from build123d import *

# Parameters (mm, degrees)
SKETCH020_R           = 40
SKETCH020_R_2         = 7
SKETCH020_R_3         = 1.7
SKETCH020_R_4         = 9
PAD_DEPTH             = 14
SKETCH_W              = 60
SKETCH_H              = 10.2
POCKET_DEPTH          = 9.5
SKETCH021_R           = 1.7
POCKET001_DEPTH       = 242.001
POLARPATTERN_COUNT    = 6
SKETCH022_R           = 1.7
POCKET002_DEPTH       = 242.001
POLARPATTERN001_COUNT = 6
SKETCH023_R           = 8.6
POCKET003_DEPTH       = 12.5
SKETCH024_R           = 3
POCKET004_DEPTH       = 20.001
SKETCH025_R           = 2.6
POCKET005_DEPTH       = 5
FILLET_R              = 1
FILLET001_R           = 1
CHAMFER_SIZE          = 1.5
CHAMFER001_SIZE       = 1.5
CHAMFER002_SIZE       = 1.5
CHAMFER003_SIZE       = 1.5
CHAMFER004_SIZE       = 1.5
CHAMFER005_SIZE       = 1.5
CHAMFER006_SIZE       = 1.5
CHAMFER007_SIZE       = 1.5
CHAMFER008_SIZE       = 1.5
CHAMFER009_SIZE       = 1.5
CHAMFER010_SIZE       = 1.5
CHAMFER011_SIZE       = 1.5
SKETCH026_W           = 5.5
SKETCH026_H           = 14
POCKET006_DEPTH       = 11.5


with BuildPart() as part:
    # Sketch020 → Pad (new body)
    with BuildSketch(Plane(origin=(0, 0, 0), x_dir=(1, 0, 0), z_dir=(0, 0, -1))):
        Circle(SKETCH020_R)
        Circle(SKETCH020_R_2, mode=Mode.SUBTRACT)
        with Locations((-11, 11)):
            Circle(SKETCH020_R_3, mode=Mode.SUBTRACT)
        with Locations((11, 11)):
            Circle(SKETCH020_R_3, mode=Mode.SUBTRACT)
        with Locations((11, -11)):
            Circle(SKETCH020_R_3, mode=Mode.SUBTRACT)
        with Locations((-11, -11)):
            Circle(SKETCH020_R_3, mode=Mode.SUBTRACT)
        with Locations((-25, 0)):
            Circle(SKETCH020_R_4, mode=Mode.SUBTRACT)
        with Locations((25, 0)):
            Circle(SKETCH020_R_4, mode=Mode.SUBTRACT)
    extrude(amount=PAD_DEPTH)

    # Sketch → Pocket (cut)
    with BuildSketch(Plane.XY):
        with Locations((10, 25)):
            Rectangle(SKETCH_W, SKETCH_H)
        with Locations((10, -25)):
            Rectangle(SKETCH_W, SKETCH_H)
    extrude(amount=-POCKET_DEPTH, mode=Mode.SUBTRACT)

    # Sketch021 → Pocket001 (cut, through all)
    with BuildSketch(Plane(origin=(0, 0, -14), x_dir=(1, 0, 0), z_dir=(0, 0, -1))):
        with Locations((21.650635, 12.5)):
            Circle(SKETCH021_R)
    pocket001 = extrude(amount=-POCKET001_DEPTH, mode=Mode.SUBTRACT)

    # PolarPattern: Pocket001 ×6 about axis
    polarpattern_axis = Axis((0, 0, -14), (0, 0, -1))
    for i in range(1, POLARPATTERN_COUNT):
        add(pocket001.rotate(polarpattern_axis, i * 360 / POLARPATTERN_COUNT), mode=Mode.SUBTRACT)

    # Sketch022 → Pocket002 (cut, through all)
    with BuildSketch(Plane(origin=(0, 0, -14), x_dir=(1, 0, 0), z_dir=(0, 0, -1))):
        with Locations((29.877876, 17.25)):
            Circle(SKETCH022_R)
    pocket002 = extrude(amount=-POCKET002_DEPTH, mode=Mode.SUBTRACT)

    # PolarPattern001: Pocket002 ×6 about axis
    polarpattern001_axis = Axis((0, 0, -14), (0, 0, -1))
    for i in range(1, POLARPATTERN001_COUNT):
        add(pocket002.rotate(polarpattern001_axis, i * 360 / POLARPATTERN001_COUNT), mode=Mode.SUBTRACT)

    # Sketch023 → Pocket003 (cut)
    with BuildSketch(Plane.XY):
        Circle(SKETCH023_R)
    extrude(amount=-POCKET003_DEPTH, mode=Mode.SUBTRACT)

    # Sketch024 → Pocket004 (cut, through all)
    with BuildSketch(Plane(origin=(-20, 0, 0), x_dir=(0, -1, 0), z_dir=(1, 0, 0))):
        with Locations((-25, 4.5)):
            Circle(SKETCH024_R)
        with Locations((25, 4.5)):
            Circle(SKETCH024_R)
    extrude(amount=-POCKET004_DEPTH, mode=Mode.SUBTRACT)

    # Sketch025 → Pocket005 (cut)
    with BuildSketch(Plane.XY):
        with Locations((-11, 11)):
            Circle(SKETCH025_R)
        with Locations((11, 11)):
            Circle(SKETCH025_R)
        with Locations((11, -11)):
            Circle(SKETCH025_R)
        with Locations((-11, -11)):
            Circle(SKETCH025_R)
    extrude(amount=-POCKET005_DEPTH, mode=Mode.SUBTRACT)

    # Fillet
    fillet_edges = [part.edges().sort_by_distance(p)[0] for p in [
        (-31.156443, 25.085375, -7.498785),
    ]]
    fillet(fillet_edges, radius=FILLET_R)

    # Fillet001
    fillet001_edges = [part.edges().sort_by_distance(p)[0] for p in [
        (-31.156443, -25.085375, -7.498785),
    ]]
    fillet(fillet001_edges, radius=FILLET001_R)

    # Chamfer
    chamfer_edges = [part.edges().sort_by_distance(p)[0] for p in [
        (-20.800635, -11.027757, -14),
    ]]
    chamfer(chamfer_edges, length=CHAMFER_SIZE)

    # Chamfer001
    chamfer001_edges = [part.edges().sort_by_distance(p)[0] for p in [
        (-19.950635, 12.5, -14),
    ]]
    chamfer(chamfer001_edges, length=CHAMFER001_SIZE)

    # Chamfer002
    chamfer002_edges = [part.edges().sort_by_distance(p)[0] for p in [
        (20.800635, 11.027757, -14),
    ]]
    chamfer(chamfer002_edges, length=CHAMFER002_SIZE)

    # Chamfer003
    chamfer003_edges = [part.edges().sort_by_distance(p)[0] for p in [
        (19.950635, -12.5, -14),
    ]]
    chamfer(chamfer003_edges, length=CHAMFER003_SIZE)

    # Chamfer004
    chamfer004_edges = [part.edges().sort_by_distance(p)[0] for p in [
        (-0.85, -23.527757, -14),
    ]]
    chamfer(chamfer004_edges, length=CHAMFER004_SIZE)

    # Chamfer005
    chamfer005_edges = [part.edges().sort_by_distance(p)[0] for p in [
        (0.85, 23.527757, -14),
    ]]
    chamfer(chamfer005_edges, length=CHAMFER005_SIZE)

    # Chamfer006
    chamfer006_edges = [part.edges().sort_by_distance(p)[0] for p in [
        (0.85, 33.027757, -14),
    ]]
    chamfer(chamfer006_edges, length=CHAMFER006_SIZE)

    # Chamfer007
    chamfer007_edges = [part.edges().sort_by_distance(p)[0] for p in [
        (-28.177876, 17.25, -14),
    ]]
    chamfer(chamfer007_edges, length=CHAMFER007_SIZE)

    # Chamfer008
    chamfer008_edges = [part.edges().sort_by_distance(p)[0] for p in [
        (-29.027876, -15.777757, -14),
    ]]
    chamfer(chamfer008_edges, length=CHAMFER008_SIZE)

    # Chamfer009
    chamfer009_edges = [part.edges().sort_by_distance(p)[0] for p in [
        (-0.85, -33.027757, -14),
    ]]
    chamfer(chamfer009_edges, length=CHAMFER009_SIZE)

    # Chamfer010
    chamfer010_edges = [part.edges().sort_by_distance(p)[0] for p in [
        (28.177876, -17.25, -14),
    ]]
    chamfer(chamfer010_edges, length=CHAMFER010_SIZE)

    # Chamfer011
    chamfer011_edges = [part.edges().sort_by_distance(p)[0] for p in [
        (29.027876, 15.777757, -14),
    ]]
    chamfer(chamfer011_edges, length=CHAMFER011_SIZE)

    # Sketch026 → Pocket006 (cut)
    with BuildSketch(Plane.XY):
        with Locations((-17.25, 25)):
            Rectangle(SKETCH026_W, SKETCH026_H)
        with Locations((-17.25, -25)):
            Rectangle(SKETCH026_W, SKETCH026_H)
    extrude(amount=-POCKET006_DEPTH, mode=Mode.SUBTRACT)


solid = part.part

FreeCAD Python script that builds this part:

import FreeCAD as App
import Part
import Sketcher
from FreeCAD import Vector


def edges_at(feature, points):
    """Names of the edges that pass closest to the given points."""
    edges = feature.Shape.Edges
    near = lambda p: min(range(len(edges)), key=lambda i: edges[i].distToShape(Part.Vertex(*p))[0])
    return sorted({f"Edge{near(p) + 1}" for p in points})

doc = App.newDocument("Part")
body = doc.addObject("PartDesign::Body", "Body")

# Sketch on XY plane
sketch1 = body.newObject("Sketcher::SketchObject", "Sketch")
sketch1.AttachmentSupport = (doc.getObject("XY_Plane"), [""])
sketch1.MapMode = "FlatFace"
sketch1.addGeometry([
    Part.Circle(Vector(0, 0, 0), Vector(0, 0, 1), 40),  # 0
    Part.Circle(Vector(-11, 11, 0), Vector(0, 0, 1), 1.7),  # 1
    Part.Circle(Vector(-25, 0, 0), Vector(0, 0, 1), 9),  # 2
    Part.Circle(Vector(11, 11, 0), Vector(0, 0, 1), 1.7),  # 3
    Part.Circle(Vector(0, 0, 0), Vector(0, 0, 1), 7),  # 4
    Part.Circle(Vector(25, 0, 0), Vector(0, 0, 1), 9),  # 5
    Part.Circle(Vector(-11, -11, 0), Vector(0, 0, 1), 1.7),  # 6
    Part.Circle(Vector(11, -11, 0), Vector(0, 0, 1), 1.7),  # 7
], False)
sketch1.addConstraint([
    Sketcher.Constraint("Coincident", 0, 3, -1, 1),
    Sketcher.Constraint("Coincident", 4, 3, -1, 1),
    Sketcher.Constraint("Equal", 1, 3),
    Sketcher.Constraint("Equal", 2, 5),
    Sketcher.Constraint("Equal", 3, 6),
    Sketcher.Constraint("Equal", 6, 7),
    Sketcher.Constraint("Symmetric", 2, 3, 5, 3, -1, 1),
    Sketcher.Constraint("Symmetric", 3, 3, 6, 3, -1, 1),
    Sketcher.Constraint("Symmetric", 1, 3, 7, 3, -1, 1),
    Sketcher.Constraint("Symmetric", 1, 3, 3, 3, -2),
    Sketcher.Constraint("PointOnObject", 2, 3, -1),
    Sketcher.Constraint("Diameter", 0, 80.0),
    Sketcher.Constraint("Diameter", 2, 18.0),
    Sketcher.Constraint("Diameter", 4, 14.0),
    Sketcher.Constraint("Diameter", 1, 3.4),
    Sketcher.Constraint("DistanceX", 1, 3, -1, 1, 11.0),
    Sketcher.Constraint("DistanceY", -1, 1, 1, 3, 11.0),
    Sketcher.Constraint("DistanceX", 2, 3, -1, 1, 25.0),
])
pad1 = body.newObject("PartDesign::Pad", "Pad")
pad1.Profile = sketch1
pad1.Length = 14
pad1.Reversed = True

# Sketch on XY plane
sketch2 = body.newObject("Sketcher::SketchObject", "Sketch001")
sketch2.AttachmentSupport = (doc.getObject("XY_Plane"), [""])
sketch2.MapMode = "FlatFace"
sketch2.addGeometry([
    Part.LineSegment(Vector(-20, 30, 0), Vector(-20, 20, 0)),  # 0
    Part.LineSegment(Vector(-20, 20, 0), Vector(40, 20, 0)),  # 1
    Part.LineSegment(Vector(40, 20, 0), Vector(40, 30, 0)),  # 2
    Part.LineSegment(Vector(40, 30, 0), Vector(-20, 30, 0)),  # 3
    Part.LineSegment(Vector(-20, -20, 0), Vector(-20, -30, 0)),  # 4
    Part.LineSegment(Vector(-20, -30, 0), Vector(40, -30, 0)),  # 5
    Part.LineSegment(Vector(40, -30, 0), Vector(40, -20, 0)),  # 6
    Part.LineSegment(Vector(40, -20, 0), Vector(-20, -20, 0)),  # 7
], False)
sketch2.addConstraint([
    Sketcher.Constraint("Coincident", 0, 2, 1, 1),
    Sketcher.Constraint("Coincident", 1, 2, 2, 1),
    Sketcher.Constraint("Coincident", 2, 2, 3, 1),
    Sketcher.Constraint("Coincident", 3, 2, 0, 1),
    Sketcher.Constraint("Coincident", 4, 2, 5, 1),
    Sketcher.Constraint("Coincident", 5, 2, 6, 1),
    Sketcher.Constraint("Coincident", 6, 2, 7, 1),
    Sketcher.Constraint("Coincident", 7, 2, 4, 1),
    Sketcher.Constraint("Vertical", 0),
    Sketcher.Constraint("Horizontal", 1),
    Sketcher.Constraint("Vertical", 2),
    Sketcher.Constraint("Horizontal", 3),
    Sketcher.Constraint("Vertical", 4),
    Sketcher.Constraint("Horizontal", 5),
    Sketcher.Constraint("Vertical", 6),
    Sketcher.Constraint("Horizontal", 7),
    Sketcher.Constraint("Symmetric", 3, 2, 4, 2, -1),
    Sketcher.Constraint("Symmetric", 1, 2, 6, 2, -1),
    Sketcher.Constraint("DistanceX", 1, 1, 1, 2, 60.0),
    Sketcher.Constraint("DistanceY", 0, 2, 0, 1, 10.2),
    Sketcher.Constraint("DistanceX", 0, 2, -1, 1, 20.0),
    Sketcher.Constraint("DistanceY", 4, 2, 0, 2, 50.0),
])
pocket1 = body.newObject("PartDesign::Pocket", "Pocket")
pocket1.Profile = sketch2
pocket1.Length = 9.5

# Sketch on XY plane
sketch3 = body.newObject("Sketcher::SketchObject", "Sketch002")
sketch3.AttachmentSupport = (doc.getObject("XY_Plane"), [""])
sketch3.MapMode = "FlatFace"
sketch3.AttachmentOffset = App.Placement(Vector(0, 0, -14), App.Rotation())
sketch3.addGeometry(Part.Circle(Vector(21.7, -12.5, 0), Vector(0, 0, 1), 1.7), False)
sketch3.addConstraint([
    Sketcher.Constraint("Diameter", 0, 3.4),
    Sketcher.Constraint("DistanceY", 0, 3, -1, 1, 12.5),
    Sketcher.Constraint("DistanceX", -1, 1, 0, 3, 21.650635),
])
pocket2 = body.newObject("PartDesign::Pocket", "Pocket001")
pocket2.Profile = sketch3
pocket2.Type = "ThroughAll"
pocket2.Reversed = True
doc.recompute()

polarpattern = body.newObject("PartDesign::PolarPattern", "PolarPattern")
polarpattern.Originals = [pocket2]
polarpattern.Axis = (doc.getObject("Z_Axis"), [""])
polarpattern.Angle = 360
polarpattern.Occurrences = 6
body.Tip = polarpattern

# Sketch on XY plane
sketch4 = body.newObject("Sketcher::SketchObject", "Sketch003")
sketch4.AttachmentSupport = (doc.getObject("XY_Plane"), [""])
sketch4.MapMode = "FlatFace"
sketch4.AttachmentOffset = App.Placement(Vector(0, 0, -14), App.Rotation())
sketch4.addGeometry(Part.Circle(Vector(29.9, -17.2, 0), Vector(0, 0, 1), 1.7), False)
sketch4.addConstraint([
    Sketcher.Constraint("Diameter", 0, 3.4),
    Sketcher.Constraint("DistanceY", 0, 3, -1, 1, 17.25),
    Sketcher.Constraint("DistanceX", -1, 1, 0, 3, 29.877876),
])
pocket3 = body.newObject("PartDesign::Pocket", "Pocket002")
pocket3.Profile = sketch4
pocket3.Type = "ThroughAll"
pocket3.Reversed = True
doc.recompute()

polarpattern2 = body.newObject("PartDesign::PolarPattern", "PolarPattern001")
polarpattern2.Originals = [pocket3]
polarpattern2.Axis = (doc.getObject("Z_Axis"), [""])
polarpattern2.Angle = 360
polarpattern2.Occurrences = 6
body.Tip = polarpattern2

# Sketch on XY plane
sketch5 = body.newObject("Sketcher::SketchObject", "Sketch004")
sketch5.AttachmentSupport = (doc.getObject("XY_Plane"), [""])
sketch5.MapMode = "FlatFace"
sketch5.addGeometry(Part.Circle(Vector(0, 0, 0), Vector(0, 0, 1), 9), False)
sketch5.addConstraint([
    Sketcher.Constraint("Coincident", 0, 3, -1, 1),
    Sketcher.Constraint("Diameter", 0, 17.2),
])
pocket4 = body.newObject("PartDesign::Pocket", "Pocket003")
pocket4.Profile = sketch5
pocket4.Length = 12.5

# Sketch on YZ plane
sketch6 = body.newObject("Sketcher::SketchObject", "Sketch005")
sketch6.AttachmentSupport = (doc.getObject("YZ_Plane"), [""])
sketch6.MapMode = "FlatFace"
sketch6.AttachmentOffset = App.Placement(Vector(0, 0, -20), App.Rotation())
sketch6.addGeometry([
    Part.Circle(Vector(25, -4.5, 0), Vector(0, 0, 1), 3),
    Part.Circle(Vector(-25, -4.5, 0), Vector(0, 0, 1), 3),
], False)
sketch6.addConstraint([
    Sketcher.Constraint("Equal", 0, 1),
    Sketcher.Constraint("Symmetric", 0, 3, 1, 3, -2),
    Sketcher.Constraint("Diameter", 0, 6.0),
    Sketcher.Constraint("DistanceX", -1, 1, 0, 3, 25.0),
    Sketcher.Constraint("DistanceY", 0, 3, -1, 1, 4.5),
])
pocket5 = body.newObject("PartDesign::Pocket", "Pocket004")
pocket5.Profile = sketch6
pocket5.Type = "ThroughAll"

# Sketch on XY plane
sketch7 = body.newObject("Sketcher::SketchObject", "Sketch006")
sketch7.AttachmentSupport = (doc.getObject("XY_Plane"), [""])
sketch7.MapMode = "FlatFace"
sketch7.addGeometry([
    Part.Circle(Vector(-11, 11, 0), Vector(0, 0, 1), 2.6),
    Part.Circle(Vector(11, 11, 0), Vector(0, 0, 1), 2.6),
    Part.Circle(Vector(11, -11, 0), Vector(0, 0, 1), 2.6),
    Part.Circle(Vector(-11, -11, 0), Vector(0, 0, 1), 2.6),
], False)
sketch7.addConstraint([
    Sketcher.Constraint("Equal", 0, 1),
    Sketcher.Constraint("Equal", 1, 2),
    Sketcher.Constraint("Equal", 2, 3),
    Sketcher.Constraint("Symmetric", 0, 3, 2, 3, -1, 1),
    Sketcher.Constraint("Symmetric", 1, 3, 3, 3, -1, 1),
    Sketcher.Constraint("Symmetric", 0, 3, 1, 3, -2),
    Sketcher.Constraint("Diameter", 0, 5.2),
    Sketcher.Constraint("DistanceX", 0, 3, -1, 1, 11.0),
    Sketcher.Constraint("DistanceY", -1, 1, 0, 3, 11.0),
])
pocket6 = body.newObject("PartDesign::Pocket", "Pocket005")
pocket6.Profile = sketch7
pocket6.Length = 5
doc.recompute()

fillet = body.newObject("PartDesign::Fillet", "Fillet")
fillet.Base = (pocket6, edges_at(pocket6, [(-28.566, 28, -4.5)]))
fillet.Radius = 1
doc.recompute()

fillet2 = body.newObject("PartDesign::Fillet", "Fillet001")
fillet2.Base = (fillet, edges_at(fillet, [(-33.407, -22, -4.5)]))
fillet2.Radius = 1
doc.recompute()

chamfer = body.newObject("PartDesign::Chamfer", "Chamfer")
chamfer.Base = (fillet2, edges_at(fillet2, [(-20.801, -11.028, -14)]))
chamfer.Size = 1.5
doc.recompute()

chamfer2 = body.newObject("PartDesign::Chamfer", "Chamfer001")
chamfer2.Base = (chamfer, edges_at(chamfer, [(-19.951, 12.5, -14)]))
chamfer2.Size = 1.5
doc.recompute()

chamfer3 = body.newObject("PartDesign::Chamfer", "Chamfer002")
chamfer3.Base = (chamfer2, edges_at(chamfer2, [(20.801, 11.028, -14)]))
chamfer3.Size = 1.5
doc.recompute()

chamfer4 = body.newObject("PartDesign::Chamfer", "Chamfer003")
chamfer4.Base = (chamfer3, edges_at(chamfer3, [(19.951, -12.5, -14)]))
chamfer4.Size = 1.5
doc.recompute()

chamfer5 = body.newObject("PartDesign::Chamfer", "Chamfer004")
chamfer5.Base = (chamfer4, edges_at(chamfer4, [(-0.85, -23.528, -14)]))
chamfer5.Size = 1.5
doc.recompute()

chamfer6 = body.newObject("PartDesign::Chamfer", "Chamfer005")
chamfer6.Base = (chamfer5, edges_at(chamfer5, [(0.85, 23.528, -14)]))
chamfer6.Size = 1.5
doc.recompute()

chamfer7 = body.newObject("PartDesign::Chamfer", "Chamfer006")
chamfer7.Base = (chamfer6, edges_at(chamfer6, [(0.85, 33.028, -14)]))
chamfer7.Size = 1.5
doc.recompute()

chamfer8 = body.newObject("PartDesign::Chamfer", "Chamfer007")
chamfer8.Base = (chamfer7, edges_at(chamfer7, [(-28.178, 17.25, -14)]))
chamfer8.Size = 1.5
doc.recompute()

chamfer9 = body.newObject("PartDesign::Chamfer", "Chamfer008")
chamfer9.Base = (chamfer8, edges_at(chamfer8, [(-29.028, -15.778, -14)]))
chamfer9.Size = 1.5
doc.recompute()

chamfer10 = body.newObject("PartDesign::Chamfer", "Chamfer009")
chamfer10.Base = (chamfer9, edges_at(chamfer9, [(-0.85, -33.028, -14)]))
chamfer10.Size = 1.5
doc.recompute()

chamfer11 = body.newObject("PartDesign::Chamfer", "Chamfer010")
chamfer11.Base = (chamfer10, edges_at(chamfer10, [(28.178, -17.25, -14)]))
chamfer11.Size = 1.5
doc.recompute()

chamfer12 = body.newObject("PartDesign::Chamfer", "Chamfer011")
chamfer12.Base = (chamfer11, edges_at(chamfer11, [(29.028, 15.778, -14)]))
chamfer12.Size = 1.5

# Sketch on XY plane
sketch8 = body.newObject("Sketcher::SketchObject", "Sketch007")
sketch8.AttachmentSupport = (doc.getObject("XY_Plane"), [""])
sketch8.MapMode = "FlatFace"
sketch8.addGeometry([
    Part.LineSegment(Vector(-20, 32, 0), Vector(-20, 18, 0)),  # 0
    Part.LineSegment(Vector(-20, 18, 0), Vector(-14, 18, 0)),  # 1
    Part.LineSegment(Vector(-14, 18, 0), Vector(-14, 32, 0)),  # 2
    Part.LineSegment(Vector(-14, 32, 0), Vector(-20, 32, 0)),  # 3
    Part.LineSegment(Vector(-20, -18, 0), Vector(-20, -32, 0)),  # 4
    Part.LineSegment(Vector(-20, -32, 0), Vector(-14, -32, 0)),  # 5
    Part.LineSegment(Vector(-14, -32, 0), Vector(-14, -18, 0)),  # 6
    Part.LineSegment(Vector(-14, -18, 0), Vector(-20, -18, 0)),  # 7
], False)
sketch8.addConstraint([
    Sketcher.Constraint("Coincident", 0, 2, 1, 1),
    Sketcher.Constraint("Coincident", 1, 2, 2, 1),
    Sketcher.Constraint("Coincident", 2, 2, 3, 1),
    Sketcher.Constraint("Coincident", 3, 2, 0, 1),
    Sketcher.Constraint("Coincident", 4, 2, 5, 1),
    Sketcher.Constraint("Coincident", 5, 2, 6, 1),
    Sketcher.Constraint("Coincident", 6, 2, 7, 1),
    Sketcher.Constraint("Coincident", 7, 2, 4, 1),
    Sketcher.Constraint("Vertical", 0),
    Sketcher.Constraint("Horizontal", 1),
    Sketcher.Constraint("Vertical", 2),
    Sketcher.Constraint("Horizontal", 3),
    Sketcher.Constraint("Vertical", 4),
    Sketcher.Constraint("Horizontal", 5),
    Sketcher.Constraint("Vertical", 6),
    Sketcher.Constraint("Horizontal", 7),
    Sketcher.Constraint("Symmetric", 3, 2, 4, 2, -1),
    Sketcher.Constraint("Symmetric", 1, 2, 6, 2, -1),
    Sketcher.Constraint("DistanceY", 0, 2, 0, 1, 14.0),
    Sketcher.Constraint("DistanceX", 1, 1, 1, 2, 5.5),
    Sketcher.Constraint("DistanceX", 0, 2, -1, 1, 20.0),
    Sketcher.Constraint("DistanceY", -1, 1, 0, 2, 18.0),
])
pocket7 = body.newObject("PartDesign::Pocket", "Pocket006")
pocket7.Profile = sketch8
pocket7.Length = 11.5

doc.recompute()
